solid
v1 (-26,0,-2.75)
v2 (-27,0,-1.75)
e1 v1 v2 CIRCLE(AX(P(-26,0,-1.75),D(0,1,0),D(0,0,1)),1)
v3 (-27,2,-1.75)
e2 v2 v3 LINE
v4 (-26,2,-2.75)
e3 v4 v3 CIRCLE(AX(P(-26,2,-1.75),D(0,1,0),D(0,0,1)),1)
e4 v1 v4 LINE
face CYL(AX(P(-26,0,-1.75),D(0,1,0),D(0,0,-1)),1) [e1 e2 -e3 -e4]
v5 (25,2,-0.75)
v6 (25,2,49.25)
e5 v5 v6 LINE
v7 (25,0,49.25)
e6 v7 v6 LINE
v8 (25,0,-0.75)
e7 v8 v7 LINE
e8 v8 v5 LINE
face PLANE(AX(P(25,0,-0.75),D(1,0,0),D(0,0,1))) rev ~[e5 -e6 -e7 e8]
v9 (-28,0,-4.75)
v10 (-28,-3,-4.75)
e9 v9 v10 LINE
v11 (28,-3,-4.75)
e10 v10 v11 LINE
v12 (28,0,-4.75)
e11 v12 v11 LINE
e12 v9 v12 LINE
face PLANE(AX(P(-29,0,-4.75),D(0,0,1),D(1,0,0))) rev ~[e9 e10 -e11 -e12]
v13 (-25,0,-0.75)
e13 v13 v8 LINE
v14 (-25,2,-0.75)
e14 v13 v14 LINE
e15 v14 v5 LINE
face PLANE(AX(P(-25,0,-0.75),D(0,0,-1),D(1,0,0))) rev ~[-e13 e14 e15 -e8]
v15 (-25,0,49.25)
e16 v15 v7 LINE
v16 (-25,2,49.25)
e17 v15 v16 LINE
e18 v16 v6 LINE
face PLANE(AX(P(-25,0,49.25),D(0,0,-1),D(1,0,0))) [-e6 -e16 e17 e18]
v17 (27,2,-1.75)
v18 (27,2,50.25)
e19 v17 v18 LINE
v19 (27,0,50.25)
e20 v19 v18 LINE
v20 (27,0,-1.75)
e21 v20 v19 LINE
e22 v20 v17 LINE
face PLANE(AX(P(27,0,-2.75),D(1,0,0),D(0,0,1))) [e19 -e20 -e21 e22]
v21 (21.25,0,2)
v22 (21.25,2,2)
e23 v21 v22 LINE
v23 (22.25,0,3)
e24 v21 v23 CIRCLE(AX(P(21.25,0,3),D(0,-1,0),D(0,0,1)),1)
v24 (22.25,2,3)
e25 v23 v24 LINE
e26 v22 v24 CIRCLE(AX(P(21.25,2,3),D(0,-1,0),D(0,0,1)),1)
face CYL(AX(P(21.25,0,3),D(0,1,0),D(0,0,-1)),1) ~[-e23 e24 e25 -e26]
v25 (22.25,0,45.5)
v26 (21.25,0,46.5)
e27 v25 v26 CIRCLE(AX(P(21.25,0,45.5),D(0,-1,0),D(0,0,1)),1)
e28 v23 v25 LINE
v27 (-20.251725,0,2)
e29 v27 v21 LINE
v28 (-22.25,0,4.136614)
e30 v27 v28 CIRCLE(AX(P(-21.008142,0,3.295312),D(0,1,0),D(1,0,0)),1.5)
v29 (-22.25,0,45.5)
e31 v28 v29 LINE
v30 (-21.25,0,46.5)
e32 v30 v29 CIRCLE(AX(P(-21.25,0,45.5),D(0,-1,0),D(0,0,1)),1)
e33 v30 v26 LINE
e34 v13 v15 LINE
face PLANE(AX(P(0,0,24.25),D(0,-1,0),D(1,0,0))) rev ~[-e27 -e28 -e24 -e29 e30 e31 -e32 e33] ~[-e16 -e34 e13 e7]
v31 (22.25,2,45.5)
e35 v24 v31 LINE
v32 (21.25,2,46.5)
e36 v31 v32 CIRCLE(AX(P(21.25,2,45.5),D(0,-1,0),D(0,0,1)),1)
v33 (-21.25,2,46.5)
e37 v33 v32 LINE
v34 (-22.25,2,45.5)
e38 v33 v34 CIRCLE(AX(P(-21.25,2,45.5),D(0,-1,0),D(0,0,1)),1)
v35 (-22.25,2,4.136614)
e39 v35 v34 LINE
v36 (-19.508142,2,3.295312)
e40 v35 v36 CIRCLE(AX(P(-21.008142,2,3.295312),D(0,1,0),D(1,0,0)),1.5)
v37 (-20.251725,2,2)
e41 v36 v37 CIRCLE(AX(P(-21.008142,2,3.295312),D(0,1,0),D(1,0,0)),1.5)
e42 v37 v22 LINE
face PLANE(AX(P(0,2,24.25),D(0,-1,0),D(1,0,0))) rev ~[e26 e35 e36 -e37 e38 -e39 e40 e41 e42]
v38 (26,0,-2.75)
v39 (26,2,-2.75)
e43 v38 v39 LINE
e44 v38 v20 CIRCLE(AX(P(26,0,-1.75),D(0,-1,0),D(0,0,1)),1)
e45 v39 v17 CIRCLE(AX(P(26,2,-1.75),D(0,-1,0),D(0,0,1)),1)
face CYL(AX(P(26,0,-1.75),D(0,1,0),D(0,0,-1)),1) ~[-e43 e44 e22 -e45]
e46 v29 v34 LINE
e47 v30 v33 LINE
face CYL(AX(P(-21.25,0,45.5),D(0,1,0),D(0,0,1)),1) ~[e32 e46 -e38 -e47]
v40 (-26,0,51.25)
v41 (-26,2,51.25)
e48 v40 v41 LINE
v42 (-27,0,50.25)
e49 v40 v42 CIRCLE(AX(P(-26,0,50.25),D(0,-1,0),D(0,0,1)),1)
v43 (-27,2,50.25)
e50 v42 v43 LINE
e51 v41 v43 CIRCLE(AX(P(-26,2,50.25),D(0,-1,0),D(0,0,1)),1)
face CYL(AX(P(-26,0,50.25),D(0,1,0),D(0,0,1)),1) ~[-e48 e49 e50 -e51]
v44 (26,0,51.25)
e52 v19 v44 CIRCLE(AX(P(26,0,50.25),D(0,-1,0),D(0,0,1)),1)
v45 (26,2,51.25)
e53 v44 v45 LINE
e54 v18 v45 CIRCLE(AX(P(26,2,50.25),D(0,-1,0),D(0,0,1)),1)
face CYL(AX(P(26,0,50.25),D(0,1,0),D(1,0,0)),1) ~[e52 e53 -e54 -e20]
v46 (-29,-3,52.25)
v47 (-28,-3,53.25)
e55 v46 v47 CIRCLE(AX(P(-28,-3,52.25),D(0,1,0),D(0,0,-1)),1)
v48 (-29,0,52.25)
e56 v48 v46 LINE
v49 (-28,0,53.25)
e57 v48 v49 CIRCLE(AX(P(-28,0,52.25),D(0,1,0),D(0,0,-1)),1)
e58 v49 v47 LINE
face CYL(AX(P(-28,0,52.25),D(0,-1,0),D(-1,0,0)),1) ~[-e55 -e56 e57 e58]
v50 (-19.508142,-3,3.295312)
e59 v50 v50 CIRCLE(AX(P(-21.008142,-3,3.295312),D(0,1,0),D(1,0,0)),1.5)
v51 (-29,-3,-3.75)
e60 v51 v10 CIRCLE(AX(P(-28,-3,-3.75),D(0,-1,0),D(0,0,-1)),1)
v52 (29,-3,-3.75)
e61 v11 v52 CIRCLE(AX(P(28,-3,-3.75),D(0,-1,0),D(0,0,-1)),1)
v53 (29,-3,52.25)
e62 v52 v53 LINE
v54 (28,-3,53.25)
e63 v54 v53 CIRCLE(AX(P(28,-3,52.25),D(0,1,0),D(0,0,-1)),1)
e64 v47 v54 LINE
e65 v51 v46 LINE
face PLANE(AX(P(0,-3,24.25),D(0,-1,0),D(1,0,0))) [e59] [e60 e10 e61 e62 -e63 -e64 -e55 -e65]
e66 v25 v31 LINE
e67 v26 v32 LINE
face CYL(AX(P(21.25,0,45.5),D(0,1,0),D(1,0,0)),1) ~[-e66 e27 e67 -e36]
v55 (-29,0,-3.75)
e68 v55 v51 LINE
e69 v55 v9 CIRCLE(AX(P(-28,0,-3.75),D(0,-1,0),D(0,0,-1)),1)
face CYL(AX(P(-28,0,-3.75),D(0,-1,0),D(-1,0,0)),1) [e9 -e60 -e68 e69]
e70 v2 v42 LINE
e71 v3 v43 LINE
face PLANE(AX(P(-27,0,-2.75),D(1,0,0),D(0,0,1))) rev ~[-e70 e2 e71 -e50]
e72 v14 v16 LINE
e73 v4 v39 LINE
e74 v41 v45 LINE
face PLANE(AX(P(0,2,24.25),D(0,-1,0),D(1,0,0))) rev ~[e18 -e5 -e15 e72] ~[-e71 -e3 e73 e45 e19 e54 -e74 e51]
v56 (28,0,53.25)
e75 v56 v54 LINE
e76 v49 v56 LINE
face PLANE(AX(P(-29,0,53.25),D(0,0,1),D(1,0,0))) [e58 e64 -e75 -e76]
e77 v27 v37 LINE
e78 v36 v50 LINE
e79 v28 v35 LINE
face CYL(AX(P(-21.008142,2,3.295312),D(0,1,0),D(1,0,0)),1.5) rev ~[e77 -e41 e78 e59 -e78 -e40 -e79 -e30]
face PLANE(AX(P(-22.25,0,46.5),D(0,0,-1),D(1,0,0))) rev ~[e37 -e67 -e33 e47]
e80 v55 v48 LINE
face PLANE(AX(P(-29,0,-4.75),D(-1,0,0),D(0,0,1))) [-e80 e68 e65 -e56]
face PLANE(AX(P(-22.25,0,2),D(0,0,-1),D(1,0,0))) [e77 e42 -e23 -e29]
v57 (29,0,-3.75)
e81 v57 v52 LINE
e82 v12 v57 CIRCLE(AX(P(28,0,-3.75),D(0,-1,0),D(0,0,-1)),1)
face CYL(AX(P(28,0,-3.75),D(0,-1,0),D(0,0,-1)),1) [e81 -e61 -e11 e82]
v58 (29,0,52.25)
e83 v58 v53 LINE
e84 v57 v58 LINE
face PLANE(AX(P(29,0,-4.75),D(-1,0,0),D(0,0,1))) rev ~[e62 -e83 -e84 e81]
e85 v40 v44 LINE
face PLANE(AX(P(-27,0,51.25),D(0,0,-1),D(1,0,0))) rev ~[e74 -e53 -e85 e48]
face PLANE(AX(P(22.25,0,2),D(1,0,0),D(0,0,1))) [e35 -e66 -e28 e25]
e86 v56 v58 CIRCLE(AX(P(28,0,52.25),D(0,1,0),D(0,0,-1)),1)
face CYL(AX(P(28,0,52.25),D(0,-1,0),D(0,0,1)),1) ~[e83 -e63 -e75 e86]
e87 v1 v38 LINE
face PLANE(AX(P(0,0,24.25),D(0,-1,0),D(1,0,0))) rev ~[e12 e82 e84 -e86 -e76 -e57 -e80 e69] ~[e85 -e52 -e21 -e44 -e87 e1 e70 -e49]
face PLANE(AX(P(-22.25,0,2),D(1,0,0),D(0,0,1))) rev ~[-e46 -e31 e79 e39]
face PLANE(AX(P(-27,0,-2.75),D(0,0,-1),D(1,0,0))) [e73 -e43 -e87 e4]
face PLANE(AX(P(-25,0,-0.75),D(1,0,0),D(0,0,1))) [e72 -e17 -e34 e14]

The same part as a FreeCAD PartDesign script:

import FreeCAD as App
import Part
import Sketcher


def edges_at(feature, points):
    """Names of the edges that pass closest to the given points."""
    edges = feature.Shape.Edges
    near = lambda p: min(range(len(edges)), key=lambda i: edges[i].distToShape(Part.Vertex(*p))[0])
    return sorted({f"Edge{near(p) + 1}" for p in points})

doc = App.newDocument("Part")
params = doc.addObject("Spreadsheet::Sheet", "Params")
for row, (alias, value) in enumerate([
    ("sketch1_width", "54 mm"),
    ("sketch1_width2", "50 mm"),
    ("sketch1_width3", "44.5 mm"),
    ("pad1_length", "2 mm"),
    ("sketch2_width", "58 mm"),
    ("pad2_length", "3 mm"),
    ("fillet_radius", "1 mm"),
    ("sketch3_diameter", "3 mm"),
], start=1):
    params.set(f"A{row}", alias)
    params.set(f"B{row}", "=" + value)
    params.setAlias(f"B{row}", alias)

body = doc.addObject("PartDesign::Body", "Body")
body.AllowCompound = True

# Sketch on XZ plane
sketch1 = doc.addObject("Sketcher::SketchObject", "Sketch")
body.addObject(sketch1)
sketch1.AttachmentSupport = (doc.XZ_Plane, [""])
sketch1.MapMode = "FlatFace"
sketch1.addGeometry([
    Part.LineSegment(App.Vector(-27, 51, 0), App.Vector(-27, -3, 0)),  # 0
    Part.LineSegment(App.Vector(-27, -3, 0), App.Vector(27, -3, 0)),  # 1
    Part.LineSegment(App.Vector(27, -3, 0), App.Vector(27, 51, 0)),  # 2
    Part.LineSegment(App.Vector(27, 51, 0), App.Vector(-27, 51, 0)),  # 3
    Part.LineSegment(App.Vector(25, -1, 0), App.Vector(-25, -1, 0)),  # 4
    Part.LineSegment(App.Vector(-25, -1, 0), App.Vector(-25, 49, 0)),  # 5
    Part.LineSegment(App.Vector(-25, 49, 0), App.Vector(25, 49, 0)),  # 6
    Part.LineSegment(App.Vector(25, 49, 0), App.Vector(25, -1, 0)),  # 7
    Part.LineSegment(App.Vector(-22, 46, 0), App.Vector(-22, 2, 0)),  # 8
    Part.LineSegment(App.Vector(-22, 2, 0), App.Vector(22, 2, 0)),  # 9
    Part.LineSegment(App.Vector(22, 2, 0), App.Vector(22, 46, 0)),  # 10
    Part.LineSegment(App.Vector(22, 46, 0), App.Vector(-22, 46, 0)),  # 11
], False)
sketch1.addConstraint([
    Sketcher.Constraint("Coincident", 0, 2, 1, 1),
    Sketcher.Constraint("Coincident", 1, 2, 2, 1),
    Sketcher.Constraint("Coincident", 2, 2, 3, 1),
    Sketcher.Constraint("Coincident", 3, 2, 0, 1),
    Sketcher.Constraint("Coincident", 4, 2, 5, 1),
    Sketcher.Constraint("Coincident", 5, 2, 6, 1),
    Sketcher.Constraint("Coincident", 6, 2, 7, 1),
    Sketcher.Constraint("Coincident", 7, 2, 4, 1),
    Sketcher.Constraint("Coincident", 8, 2, 9, 1),
    Sketcher.Constraint("Coincident", 9, 2, 10, 1),
    Sketcher.Constraint("Coincident", 10, 2, 11, 1),
    Sketcher.Constraint("Coincident", 11, 2, 8, 1),
    Sketcher.Constraint("Vertical", 0),
    Sketcher.Constraint("Horizontal", 1),
    Sketcher.Constraint("Vertical", 2),
    Sketcher.Constraint("Horizontal", 3),
    Sketcher.Constraint("Horizontal", 4),
    Sketcher.Constraint("Vertical", 5),
    Sketcher.Constraint("Horizontal", 6),
    Sketcher.Constraint("Vertical", 7),
    Sketcher.Constraint("Vertical", 8),
    Sketcher.Constraint("Horizontal", 9),
    Sketcher.Constraint("Vertical", 10),
    Sketcher.Constraint("Horizontal", 11),
    Sketcher.Constraint("Equal", 3, 0),
    Sketcher.Constraint("Equal", 6, 5),
    Sketcher.Constraint("Equal", 11, 8),
    Sketcher.Constraint("DistanceX", 1, 1, 1, 2, 54.0),
    Sketcher.Constraint("DistanceX", 4, 2, 4, 1, 50.0),
    Sketcher.Constraint("DistanceX", 9, 1, 9, 2, 44.5),
    Sketcher.Constraint("DistanceX", 0, 2, -1, 1, 27.0),
    Sketcher.Constraint("DistanceX", 4, 2, -1, 1, 25.0),
    Sketcher.Constraint("DistanceY", -1, 1, 8, 2, 2.0),
    Sketcher.Constraint("DistanceY", 0, 2, 4, 2, 2.0),
    Sketcher.Constraint("DistanceY", 0, 2, -1, 1, 2.75),
    Sketcher.Constraint("DistanceX", 8, 2, -1, 1, 22.25),
])
sketch1.setExpression("Constraints[27]", "Params.sketch1_width")
sketch1.setExpression("Constraints[28]", "Params.sketch1_width2")
sketch1.setExpression("Constraints[29]", "Params.sketch1_width3")
pad1 = doc.addObject("PartDesign::Pad", "Pad")
body.addObject(pad1)
pad1.Profile = sketch1
pad1.setExpression("Length", "Params.pad1_length")
pad1.Reversed = True

# Sketch on XZ plane
sketch2 = doc.addObject("Sketcher::SketchObject", "Sketch001")
body.addObject(sketch2)
sketch2.AttachmentSupport = (doc.XZ_Plane, [""])
sketch2.MapMode = "FlatFace"
sketch2.addGeometry([
    Part.LineSegment(App.Vector(-29, 53, 0), App.Vector(-29, -5, 0)),
    Part.LineSegment(App.Vector(-29, -5, 0), App.Vector(29, -5, 0)),
    Part.LineSegment(App.Vector(29, -5, 0), App.Vector(29, 53, 0)),
    Part.LineSegment(App.Vector(29, 53, 0), App.Vector(-29, 53, 0)),
], False)
sketch2.addConstraint([
    Sketcher.Constraint("Coincident", 0, 2, 1, 1),
    Sketcher.Constraint("Coincident", 1, 2, 2, 1),
    Sketcher.Constraint("Coincident", 2, 2, 3, 1),
    Sketcher.Constraint("Coincident", 3, 2, 0, 1),
    Sketcher.Constraint("Vertical", 0),
    Sketcher.Constraint("Horizontal", 1),
    Sketcher.Constraint("Vertical", 2),
    Sketcher.Constraint("Horizontal", 3),
    Sketcher.Constraint("Equal", 3, 0),
    Sketcher.Constraint("DistanceX", 1, 1, 1, 2, 58.0),
    Sketcher.Constraint("DistanceX", 0, 2, -1, 1, 29.0),
    Sketcher.Constraint("DistanceY", 0, 2, -1, 1, 4.75),
])
sketch2.setExpression("Constraints[9]", "Params.sketch2_width")
pad2 = doc.addObject("PartDesign::Pad", "Pad001")
body.addObject(pad2)
pad2.Profile = sketch2
pad2.setExpression("Length", "Params.pad2_length")
doc.recompute()

fillet = doc.addObject("PartDesign::Fillet", "Fillet")
body.addObject(fillet)
fillet.Base = (pad2, edges_at(pad2, [
    (-29, -1.5, 53.25),
    (-27, 1, 51.25),
    (-22.25, 1, 46.5),
    (22.25, 1, 46.5),
    (27, 1, 51.25),
    (29, -1.5, 53.25),
    (29, -1.5, -4.75),
    (27, 1, -2.75),
    (22.25, 1, 2),
    (-29, -1.5, -4.75),
    (-27, 1, -2.75),
    (-22.25, 1, 2),
]))
fillet.setExpression("Radius", "Params.fillet_radius")

# Sketch on XZ plane
sketch3 = doc.addObject("Sketcher::SketchObject", "Sketch002")
body.addObject(sketch3)
sketch3.AttachmentSupport = (doc.XZ_Plane, [""])
sketch3.MapMode = "FlatFace"
sketch3.AttachmentOffset = App.Placement(App.Vector(0, 0, -2), App.Rotation())
sketch3.addGeometry(Part.Circle(App.Vector(-21, 3.3, 0), App.Vector(0, 0, 1), 1.5), False)
sketch3.addConstraint([
    Sketcher.Constraint("Diameter", 0, 3.0),
    Sketcher.Constraint("DistanceX", 0, 3, -1, 1, 21.008142),
    Sketcher.Constraint("DistanceY", -1, 1, 0, 3, 3.295312),
])
sketch3.setExpression("Constraints[0]", "Params.sketch3_diameter")
pocket1 = doc.addObject("PartDesign::Pocket", "Pocket")
body.addObject(pocket1)
pocket1.Profile = sketch3
pocket1.Type = "ThroughAll"
pocket1.Reversed = True

doc.recompute()
